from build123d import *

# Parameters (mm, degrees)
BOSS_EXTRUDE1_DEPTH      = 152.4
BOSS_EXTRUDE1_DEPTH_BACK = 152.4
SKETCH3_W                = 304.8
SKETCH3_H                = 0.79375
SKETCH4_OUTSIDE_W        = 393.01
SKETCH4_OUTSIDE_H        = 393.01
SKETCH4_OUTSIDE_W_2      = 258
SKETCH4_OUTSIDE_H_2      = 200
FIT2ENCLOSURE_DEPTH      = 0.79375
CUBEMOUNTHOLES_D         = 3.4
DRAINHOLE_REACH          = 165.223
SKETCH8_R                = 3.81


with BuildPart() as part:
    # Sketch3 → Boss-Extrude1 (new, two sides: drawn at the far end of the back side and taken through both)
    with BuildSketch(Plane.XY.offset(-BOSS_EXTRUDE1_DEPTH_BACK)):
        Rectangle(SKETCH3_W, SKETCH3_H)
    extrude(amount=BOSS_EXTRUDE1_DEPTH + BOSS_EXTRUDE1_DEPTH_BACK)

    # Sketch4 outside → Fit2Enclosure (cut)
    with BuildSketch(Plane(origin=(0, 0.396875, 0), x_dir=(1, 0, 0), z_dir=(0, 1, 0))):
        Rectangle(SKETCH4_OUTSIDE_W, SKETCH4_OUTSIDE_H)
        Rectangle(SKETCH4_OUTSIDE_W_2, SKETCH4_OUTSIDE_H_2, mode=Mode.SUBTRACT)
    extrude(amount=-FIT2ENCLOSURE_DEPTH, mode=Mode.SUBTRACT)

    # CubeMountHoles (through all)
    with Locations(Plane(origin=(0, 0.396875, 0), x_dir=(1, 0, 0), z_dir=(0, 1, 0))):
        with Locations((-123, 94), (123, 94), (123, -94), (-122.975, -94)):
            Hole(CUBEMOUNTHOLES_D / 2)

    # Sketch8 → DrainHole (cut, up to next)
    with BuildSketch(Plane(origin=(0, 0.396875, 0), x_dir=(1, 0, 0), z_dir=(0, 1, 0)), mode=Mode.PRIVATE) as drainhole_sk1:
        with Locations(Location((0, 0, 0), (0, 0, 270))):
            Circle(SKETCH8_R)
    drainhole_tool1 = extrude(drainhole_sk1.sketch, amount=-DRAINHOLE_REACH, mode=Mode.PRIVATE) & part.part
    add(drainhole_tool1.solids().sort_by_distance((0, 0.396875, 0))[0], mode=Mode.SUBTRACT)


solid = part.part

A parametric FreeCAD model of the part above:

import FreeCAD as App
import Part
import Sketcher
Q = App.Units.Quantity


def add_polygon(sketch, points):
    """Adds a closed chain of lines whose ends are joined by coincident constraints."""
    first, n = sketch.GeometryCount, len(points)
    for a, b in zip(points, points[1:] + points[:1]):
        sketch.addGeometry(Part.LineSegment(App.Vector(*a, 0), App.Vector(*b, 0)), False)
    for i in range(n):
        sketch.addConstraint(Sketcher.Constraint("Coincident", first + i, 2, first + (i + 1) % n, 1))

doc = App.newDocument("Part")
body = doc.addObject("PartDesign::Body", "Body")

# Sketch on XY plane
sketch1 = doc.addObject("Sketcher::SketchObject", "Sketch")
body.addObject(sketch1)
sketch1.AttachmentSupport = (doc.XY_Plane, [""])
sketch1.MapMode = "FlatFace"
add_polygon(sketch1, [(-152.4, 0.4), (-152.4, -0.4), (152.4, -0.4), (152.4, 0.4)])  # lines 0-3
sketch1.addConstraint(Sketcher.Constraint("Vertical", 0))
sketch1.addConstraint(Sketcher.Constraint("Horizontal", 1))
sketch1.addConstraint(Sketcher.Constraint("Vertical", 2))
sketch1.addConstraint(Sketcher.Constraint("Horizontal", 3))
sketch1.addConstraint(Sketcher.Constraint("Symmetric", 0, 2, 2, 2, -1, 1))
sketch1.addConstraint(Sketcher.Constraint("DistanceX", 1, 1, 1, 2, Q("12 in")))
sketch1.addConstraint(Sketcher.Constraint("DistanceY", 0, 2, 0, 1, Q("0.03125 in")))
pad1 = doc.addObject("PartDesign::Pad", "Pad")
body.addObject(pad1)
pad1.Profile = sketch1
pad1.Type = "TwoLengths"
pad1.Length = Q("6 in")
pad1.Length2 = Q("6 in")

# Sketch on XZ plane
sketch2 = doc.addObject("Sketcher::SketchObject", "Sketch001")
body.addObject(sketch2)
sketch2.AttachmentSupport = (doc.XZ_Plane, [""])
sketch2.MapMode = "FlatFace"
sketch2.AttachmentOffset = App.Placement(App.Vector(0, 0, -0.015625 * 25.4), App.Rotation())
add_polygon(sketch2, [(-197, -197), (-197, 197), (197, 197), (197, -197)])  # lines 0-3
add_polygon(sketch2, [(129, 100), (-129, 100), (-129, -100), (129, -100)])  # lines 4-7
sketch2.addConstraint(Sketcher.Constraint("Vertical", 0))
sketch2.addConstraint(Sketcher.Constraint("Horizontal", 1))
sketch2.addConstraint(Sketcher.Constraint("Vertical", 2))
sketch2.addConstraint(Sketcher.Constraint("Horizontal", 3))
sketch2.addConstraint(Sketcher.Constraint("Horizontal", 4))
sketch2.addConstraint(Sketcher.Constraint("Vertical", 5))
sketch2.addConstraint(Sketcher.Constraint("Horizontal", 6))
sketch2.addConstraint(Sketcher.Constraint("Vertical", 7))
sketch2.addConstraint(Sketcher.Constraint("Symmetric", 0, 2, 2, 2, -1, 1))
sketch2.addConstraint(Sketcher.Constraint("Symmetric", 4, 2, 6, 2, -1, 1))
sketch2.addConstraint(Sketcher.Constraint("Equal", 3, 0))
sketch2.addConstraint(Sketcher.Constraint("DistanceX", 1, 1, 1, 2, 393.01))
sketch2.addConstraint(Sketcher.Constraint("DistanceX", 4, 2, 4, 1, 258.0))
sketch2.addConstraint(Sketcher.Constraint("DistanceY", 5, 2, 5, 1, 200.0))
pocket1 = doc.addObject("PartDesign::Pocket", "Pocket")
body.addObject(pocket1)
pocket1.Profile = sketch2
pocket1.Length = Q("0.03125 in")
pocket1.Reversed = True

# Sketch on XZ plane
sketch3 = doc.addObject("Sketcher::SketchObject", "Sketch002")
body.addObject(sketch3)
sketch3.AttachmentSupport = (doc.XZ_Plane, [""])
sketch3.MapMode = "FlatFace"
sketch3.AttachmentOffset = App.Placement(App.Vector(0, 0, -0.015625 * 25.4), App.Rotation())
sketch3.addGeometry(Part.Circle(App.Vector(-123, -94, 0), App.Vector(0, 0, 1), 1.7), False)
sketch3.addGeometry(Part.Circle(App.Vector(123, -94, 0), App.Vector(0, 0, 1), 1.7), False)
sketch3.addGeometry(Part.Circle(App.Vector(123, 94, 0), App.Vector(0, 0, 1), 1.7), False)
sketch3.addGeometry(Part.Circle(App.Vector(-123, 94, 0), App.Vector(0, 0, 1), 1.7), False)
sketch3.addConstraint(Sketcher.Constraint("Equal", 0, 1))
sketch3.addConstraint(Sketcher.Constraint("Equal", 1, 2))
sketch3.addConstraint(Sketcher.Constraint("Equal", 2, 3))
sketch3.addConstraint(Sketcher.Constraint("Symmetric", 0, 3, 2, 3, -1, 1))
sketch3.addConstraint(Sketcher.Constraint("Symmetric", 0, 3, 1, 3, -2))
sketch3.addConstraint(Sketcher.Constraint("Horizontal", 2, 3, 3, 3))
sketch3.addConstraint(Sketcher.Constraint("Diameter", 0, 3.4))
sketch3.addConstraint(Sketcher.Constraint("DistanceX", 0, 3, -1, 1, 123.0))
sketch3.addConstraint(Sketcher.Constraint("DistanceY", 0, 3, -1, 1, 94.0))
sketch3.addConstraint(Sketcher.Constraint("DistanceX", 3, 3, -1, 1, 122.975))
doc.recompute()
hole = doc.addObject("PartDesign::Hole", "Hole")
body.addObject(hole)
hole.Profile = sketch3
hole.ThreadType = "None"
hole.Diameter = 3.4
hole.DepthType = "ThroughAll"
hole.Reversed = True

# Sketch on XZ plane
sketch4 = doc.addObject("Sketcher::SketchObject", "Sketch003")
body.addObject(sketch4)
sketch4.AttachmentSupport = (doc.XZ_Plane, [""])
sketch4.MapMode = "FlatFace"
sketch4.AttachmentOffset = App.Placement(App.Vector(0, 0, -0.015625 * 25.4), App.Rotation())
sketch4.addGeometry(Part.Circle(App.Vector(0, 0, 0), App.Vector(0, 0, 1), 3.8), False)
sketch4.addConstraint(Sketcher.Constraint("Coincident", 0, 3, -1, 1))
sketch4.addConstraint(Sketcher.Constraint("Diameter", 0, Q("0.3 in")))
pocket2 = doc.addObject("PartDesign::Pocket", "Pocket001")
body.addObject(pocket2)
pocket2.Profile = sketch4
pocket2.Type = "UpToFirst"
pocket2.Reversed = True

doc.recompute()
